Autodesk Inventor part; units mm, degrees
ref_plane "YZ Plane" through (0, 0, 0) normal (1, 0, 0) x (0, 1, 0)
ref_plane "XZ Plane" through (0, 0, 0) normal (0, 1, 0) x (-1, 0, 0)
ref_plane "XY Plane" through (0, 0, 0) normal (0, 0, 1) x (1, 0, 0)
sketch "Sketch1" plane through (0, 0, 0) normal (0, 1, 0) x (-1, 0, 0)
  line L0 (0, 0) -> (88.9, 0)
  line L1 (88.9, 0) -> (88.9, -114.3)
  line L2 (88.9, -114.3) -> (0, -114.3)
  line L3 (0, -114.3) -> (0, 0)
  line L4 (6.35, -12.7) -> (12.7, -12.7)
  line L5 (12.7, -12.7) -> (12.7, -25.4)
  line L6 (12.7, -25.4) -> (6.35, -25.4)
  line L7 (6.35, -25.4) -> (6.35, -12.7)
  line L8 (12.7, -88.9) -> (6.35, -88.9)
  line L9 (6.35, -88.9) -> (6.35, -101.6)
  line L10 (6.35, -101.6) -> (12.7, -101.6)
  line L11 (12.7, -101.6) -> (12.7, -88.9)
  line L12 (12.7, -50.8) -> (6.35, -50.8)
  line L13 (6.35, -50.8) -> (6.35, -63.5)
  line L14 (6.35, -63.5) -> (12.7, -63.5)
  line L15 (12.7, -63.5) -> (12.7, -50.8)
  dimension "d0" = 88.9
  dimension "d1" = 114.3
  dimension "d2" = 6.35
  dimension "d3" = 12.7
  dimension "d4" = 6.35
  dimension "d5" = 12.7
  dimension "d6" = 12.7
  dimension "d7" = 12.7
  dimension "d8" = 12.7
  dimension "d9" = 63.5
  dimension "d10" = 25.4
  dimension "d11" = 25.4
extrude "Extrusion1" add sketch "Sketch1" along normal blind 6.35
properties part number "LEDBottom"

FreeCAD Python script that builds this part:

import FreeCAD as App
import Part
import Sketcher
from FreeCAD import Vector
Q = App.Units.Quantity


def add_polygon(sketch, points):
    """Adds a closed chain of lines whose ends are joined by coincident constraints."""
    first, n = sketch.GeometryCount, len(points)
    for a, b in zip(points, points[1:] + points[:1]):
        sketch.addGeometry(Part.LineSegment(App.Vector(*a, 0), App.Vector(*b, 0)), False)
    for i in range(n):
        sketch.addConstraint(Sketcher.Constraint("Coincident", first + i, 2, first + (i + 1) % n, 1))

doc = App.newDocument("Part")
params = doc.addObject("Spreadsheet::Sheet", "Params")
for row, (alias, value) in enumerate([
    ("sketch1_width", "3.5 in"),
    ("sketch1_height", "4.5 in"),
    ("sketch1_height2", "0.5 in"),
    ("sketch1_width2", "0.25 in"),
    ("pad1_length", "0.25 in"),
], start=1):
    params.set(f"A{row}", alias)
    params.set(f"B{row}", "=" + value)
    params.setAlias(f"B{row}", alias)

body = doc.addObject("PartDesign::Body", "Body")

# Sketch on XZ plane
sketch1 = doc.addObject("Sketcher::SketchObject", "Sketch")
body.addObject(sketch1)
sketch1.AttachmentSupport = (doc.XZ_Plane, [""])
sketch1.MapMode = "FlatFace"
add_polygon(sketch1, [(-88.9, 0), (0, 0), (0, -114.3), (-88.9, -114.3)])  # lines 0-3
add_polygon(sketch1, [(-6.35, -88.9), (-12.7, -88.9), (-12.7, -101.6), (-6.35, -101.6)])  # lines 4-7
add_polygon(sketch1, [(-6.35, -50.8), (-12.7, -50.8), (-12.7, -63.5), (-6.35, -63.5)])  # lines 8-11
add_polygon(sketch1, [(-6.35, -25.4), (-6.35, -12.7), (-12.7, -12.7), (-12.7, -25.4)])  # lines 12-15
sketch1.addConstraint(Sketcher.Constraint("Horizontal", 0))
sketch1.addConstraint(Sketcher.Constraint("Vertical", 1))
sketch1.addConstraint(Sketcher.Constraint("Horizontal", 2))
sketch1.addConstraint(Sketcher.Constraint("Vertical", 3))
sketch1.addConstraint(Sketcher.Constraint("Horizontal", 4))
sketch1.addConstraint(Sketcher.Constraint("Vertical", 5))
sketch1.addConstraint(Sketcher.Constraint("Horizontal", 6))
sketch1.addConstraint(Sketcher.Constraint("Vertical", 7))
sketch1.addConstraint(Sketcher.Constraint("Horizontal", 8))
sketch1.addConstraint(Sketcher.Constraint("Vertical", 9))
sketch1.addConstraint(Sketcher.Constraint("Horizontal", 10))
sketch1.addConstraint(Sketcher.Constraint("Vertical", 11))
sketch1.addConstraint(Sketcher.Constraint("Vertical", 12))
sketch1.addConstraint(Sketcher.Constraint("Horizontal", 13))
sketch1.addConstraint(Sketcher.Constraint("Vertical", 14))
sketch1.addConstraint(Sketcher.Constraint("Horizontal", 15))
sketch1.addConstraint(Sketcher.Constraint("Coincident", 0, 2, -1, 1))
sketch1.addConstraint(Sketcher.Constraint("Vertical", 5, 2, 8, 2))
sketch1.addConstraint(Sketcher.Constraint("Vertical", 7, 2, 10, 2))
sketch1.addConstraint(Sketcher.Constraint("Vertical", 11, 2, 12, 2))
sketch1.addConstraint(Sketcher.Constraint("Vertical", 9, 2, 13, 2))
sketch1.addConstraint(Sketcher.Constraint("Equal", 7, 9))
sketch1.addConstraint(Sketcher.Constraint("Equal", 11, 12))
sketch1.addConstraint(Sketcher.Constraint("DistanceX", 0, 1, 0, 2, Q("3.5 in")))
sketch1.addConstraint(Sketcher.Constraint("DistanceY", 1, 2, 1, 1, Q("4.5 in")))
sketch1.addConstraint(Sketcher.Constraint("DistanceY", 5, 2, 5, 1, Q("0.5 in")))
sketch1.addConstraint(Sketcher.Constraint("DistanceY", 14, 2, -1, 1, Q("1 in")))
sketch1.addConstraint(Sketcher.Constraint("DistanceY", 1, 2, 4, 2, Q("1 in")))
sketch1.addConstraint(Sketcher.Constraint("DistanceY", 4, 2, 9, 2, Q("1 in")))
sketch1.addConstraint(Sketcher.Constraint("DistanceX", 4, 2, 4, 1, Q("0.25 in")))
sketch1.addConstraint(Sketcher.Constraint("DistanceX", 4, 2, -1, 1, Q("0.5 in")))
sketch1.setExpression("Constraints[39]", "Params.sketch1_width")
sketch1.setExpression("Constraints[40]", "Params.sketch1_height")
sketch1.setExpression("Constraints[41]", "Params.sketch1_height2")
sketch1.setExpression("Constraints[45]", "Params.sketch1_width2")
pad1 = doc.addObject("PartDesign::Pad", "Pad")
body.addObject(pad1)
pad1.Profile = sketch1
pad1.setExpression("Length", "Params.pad1_length")
pad1.Reversed = True

doc.recompute()
